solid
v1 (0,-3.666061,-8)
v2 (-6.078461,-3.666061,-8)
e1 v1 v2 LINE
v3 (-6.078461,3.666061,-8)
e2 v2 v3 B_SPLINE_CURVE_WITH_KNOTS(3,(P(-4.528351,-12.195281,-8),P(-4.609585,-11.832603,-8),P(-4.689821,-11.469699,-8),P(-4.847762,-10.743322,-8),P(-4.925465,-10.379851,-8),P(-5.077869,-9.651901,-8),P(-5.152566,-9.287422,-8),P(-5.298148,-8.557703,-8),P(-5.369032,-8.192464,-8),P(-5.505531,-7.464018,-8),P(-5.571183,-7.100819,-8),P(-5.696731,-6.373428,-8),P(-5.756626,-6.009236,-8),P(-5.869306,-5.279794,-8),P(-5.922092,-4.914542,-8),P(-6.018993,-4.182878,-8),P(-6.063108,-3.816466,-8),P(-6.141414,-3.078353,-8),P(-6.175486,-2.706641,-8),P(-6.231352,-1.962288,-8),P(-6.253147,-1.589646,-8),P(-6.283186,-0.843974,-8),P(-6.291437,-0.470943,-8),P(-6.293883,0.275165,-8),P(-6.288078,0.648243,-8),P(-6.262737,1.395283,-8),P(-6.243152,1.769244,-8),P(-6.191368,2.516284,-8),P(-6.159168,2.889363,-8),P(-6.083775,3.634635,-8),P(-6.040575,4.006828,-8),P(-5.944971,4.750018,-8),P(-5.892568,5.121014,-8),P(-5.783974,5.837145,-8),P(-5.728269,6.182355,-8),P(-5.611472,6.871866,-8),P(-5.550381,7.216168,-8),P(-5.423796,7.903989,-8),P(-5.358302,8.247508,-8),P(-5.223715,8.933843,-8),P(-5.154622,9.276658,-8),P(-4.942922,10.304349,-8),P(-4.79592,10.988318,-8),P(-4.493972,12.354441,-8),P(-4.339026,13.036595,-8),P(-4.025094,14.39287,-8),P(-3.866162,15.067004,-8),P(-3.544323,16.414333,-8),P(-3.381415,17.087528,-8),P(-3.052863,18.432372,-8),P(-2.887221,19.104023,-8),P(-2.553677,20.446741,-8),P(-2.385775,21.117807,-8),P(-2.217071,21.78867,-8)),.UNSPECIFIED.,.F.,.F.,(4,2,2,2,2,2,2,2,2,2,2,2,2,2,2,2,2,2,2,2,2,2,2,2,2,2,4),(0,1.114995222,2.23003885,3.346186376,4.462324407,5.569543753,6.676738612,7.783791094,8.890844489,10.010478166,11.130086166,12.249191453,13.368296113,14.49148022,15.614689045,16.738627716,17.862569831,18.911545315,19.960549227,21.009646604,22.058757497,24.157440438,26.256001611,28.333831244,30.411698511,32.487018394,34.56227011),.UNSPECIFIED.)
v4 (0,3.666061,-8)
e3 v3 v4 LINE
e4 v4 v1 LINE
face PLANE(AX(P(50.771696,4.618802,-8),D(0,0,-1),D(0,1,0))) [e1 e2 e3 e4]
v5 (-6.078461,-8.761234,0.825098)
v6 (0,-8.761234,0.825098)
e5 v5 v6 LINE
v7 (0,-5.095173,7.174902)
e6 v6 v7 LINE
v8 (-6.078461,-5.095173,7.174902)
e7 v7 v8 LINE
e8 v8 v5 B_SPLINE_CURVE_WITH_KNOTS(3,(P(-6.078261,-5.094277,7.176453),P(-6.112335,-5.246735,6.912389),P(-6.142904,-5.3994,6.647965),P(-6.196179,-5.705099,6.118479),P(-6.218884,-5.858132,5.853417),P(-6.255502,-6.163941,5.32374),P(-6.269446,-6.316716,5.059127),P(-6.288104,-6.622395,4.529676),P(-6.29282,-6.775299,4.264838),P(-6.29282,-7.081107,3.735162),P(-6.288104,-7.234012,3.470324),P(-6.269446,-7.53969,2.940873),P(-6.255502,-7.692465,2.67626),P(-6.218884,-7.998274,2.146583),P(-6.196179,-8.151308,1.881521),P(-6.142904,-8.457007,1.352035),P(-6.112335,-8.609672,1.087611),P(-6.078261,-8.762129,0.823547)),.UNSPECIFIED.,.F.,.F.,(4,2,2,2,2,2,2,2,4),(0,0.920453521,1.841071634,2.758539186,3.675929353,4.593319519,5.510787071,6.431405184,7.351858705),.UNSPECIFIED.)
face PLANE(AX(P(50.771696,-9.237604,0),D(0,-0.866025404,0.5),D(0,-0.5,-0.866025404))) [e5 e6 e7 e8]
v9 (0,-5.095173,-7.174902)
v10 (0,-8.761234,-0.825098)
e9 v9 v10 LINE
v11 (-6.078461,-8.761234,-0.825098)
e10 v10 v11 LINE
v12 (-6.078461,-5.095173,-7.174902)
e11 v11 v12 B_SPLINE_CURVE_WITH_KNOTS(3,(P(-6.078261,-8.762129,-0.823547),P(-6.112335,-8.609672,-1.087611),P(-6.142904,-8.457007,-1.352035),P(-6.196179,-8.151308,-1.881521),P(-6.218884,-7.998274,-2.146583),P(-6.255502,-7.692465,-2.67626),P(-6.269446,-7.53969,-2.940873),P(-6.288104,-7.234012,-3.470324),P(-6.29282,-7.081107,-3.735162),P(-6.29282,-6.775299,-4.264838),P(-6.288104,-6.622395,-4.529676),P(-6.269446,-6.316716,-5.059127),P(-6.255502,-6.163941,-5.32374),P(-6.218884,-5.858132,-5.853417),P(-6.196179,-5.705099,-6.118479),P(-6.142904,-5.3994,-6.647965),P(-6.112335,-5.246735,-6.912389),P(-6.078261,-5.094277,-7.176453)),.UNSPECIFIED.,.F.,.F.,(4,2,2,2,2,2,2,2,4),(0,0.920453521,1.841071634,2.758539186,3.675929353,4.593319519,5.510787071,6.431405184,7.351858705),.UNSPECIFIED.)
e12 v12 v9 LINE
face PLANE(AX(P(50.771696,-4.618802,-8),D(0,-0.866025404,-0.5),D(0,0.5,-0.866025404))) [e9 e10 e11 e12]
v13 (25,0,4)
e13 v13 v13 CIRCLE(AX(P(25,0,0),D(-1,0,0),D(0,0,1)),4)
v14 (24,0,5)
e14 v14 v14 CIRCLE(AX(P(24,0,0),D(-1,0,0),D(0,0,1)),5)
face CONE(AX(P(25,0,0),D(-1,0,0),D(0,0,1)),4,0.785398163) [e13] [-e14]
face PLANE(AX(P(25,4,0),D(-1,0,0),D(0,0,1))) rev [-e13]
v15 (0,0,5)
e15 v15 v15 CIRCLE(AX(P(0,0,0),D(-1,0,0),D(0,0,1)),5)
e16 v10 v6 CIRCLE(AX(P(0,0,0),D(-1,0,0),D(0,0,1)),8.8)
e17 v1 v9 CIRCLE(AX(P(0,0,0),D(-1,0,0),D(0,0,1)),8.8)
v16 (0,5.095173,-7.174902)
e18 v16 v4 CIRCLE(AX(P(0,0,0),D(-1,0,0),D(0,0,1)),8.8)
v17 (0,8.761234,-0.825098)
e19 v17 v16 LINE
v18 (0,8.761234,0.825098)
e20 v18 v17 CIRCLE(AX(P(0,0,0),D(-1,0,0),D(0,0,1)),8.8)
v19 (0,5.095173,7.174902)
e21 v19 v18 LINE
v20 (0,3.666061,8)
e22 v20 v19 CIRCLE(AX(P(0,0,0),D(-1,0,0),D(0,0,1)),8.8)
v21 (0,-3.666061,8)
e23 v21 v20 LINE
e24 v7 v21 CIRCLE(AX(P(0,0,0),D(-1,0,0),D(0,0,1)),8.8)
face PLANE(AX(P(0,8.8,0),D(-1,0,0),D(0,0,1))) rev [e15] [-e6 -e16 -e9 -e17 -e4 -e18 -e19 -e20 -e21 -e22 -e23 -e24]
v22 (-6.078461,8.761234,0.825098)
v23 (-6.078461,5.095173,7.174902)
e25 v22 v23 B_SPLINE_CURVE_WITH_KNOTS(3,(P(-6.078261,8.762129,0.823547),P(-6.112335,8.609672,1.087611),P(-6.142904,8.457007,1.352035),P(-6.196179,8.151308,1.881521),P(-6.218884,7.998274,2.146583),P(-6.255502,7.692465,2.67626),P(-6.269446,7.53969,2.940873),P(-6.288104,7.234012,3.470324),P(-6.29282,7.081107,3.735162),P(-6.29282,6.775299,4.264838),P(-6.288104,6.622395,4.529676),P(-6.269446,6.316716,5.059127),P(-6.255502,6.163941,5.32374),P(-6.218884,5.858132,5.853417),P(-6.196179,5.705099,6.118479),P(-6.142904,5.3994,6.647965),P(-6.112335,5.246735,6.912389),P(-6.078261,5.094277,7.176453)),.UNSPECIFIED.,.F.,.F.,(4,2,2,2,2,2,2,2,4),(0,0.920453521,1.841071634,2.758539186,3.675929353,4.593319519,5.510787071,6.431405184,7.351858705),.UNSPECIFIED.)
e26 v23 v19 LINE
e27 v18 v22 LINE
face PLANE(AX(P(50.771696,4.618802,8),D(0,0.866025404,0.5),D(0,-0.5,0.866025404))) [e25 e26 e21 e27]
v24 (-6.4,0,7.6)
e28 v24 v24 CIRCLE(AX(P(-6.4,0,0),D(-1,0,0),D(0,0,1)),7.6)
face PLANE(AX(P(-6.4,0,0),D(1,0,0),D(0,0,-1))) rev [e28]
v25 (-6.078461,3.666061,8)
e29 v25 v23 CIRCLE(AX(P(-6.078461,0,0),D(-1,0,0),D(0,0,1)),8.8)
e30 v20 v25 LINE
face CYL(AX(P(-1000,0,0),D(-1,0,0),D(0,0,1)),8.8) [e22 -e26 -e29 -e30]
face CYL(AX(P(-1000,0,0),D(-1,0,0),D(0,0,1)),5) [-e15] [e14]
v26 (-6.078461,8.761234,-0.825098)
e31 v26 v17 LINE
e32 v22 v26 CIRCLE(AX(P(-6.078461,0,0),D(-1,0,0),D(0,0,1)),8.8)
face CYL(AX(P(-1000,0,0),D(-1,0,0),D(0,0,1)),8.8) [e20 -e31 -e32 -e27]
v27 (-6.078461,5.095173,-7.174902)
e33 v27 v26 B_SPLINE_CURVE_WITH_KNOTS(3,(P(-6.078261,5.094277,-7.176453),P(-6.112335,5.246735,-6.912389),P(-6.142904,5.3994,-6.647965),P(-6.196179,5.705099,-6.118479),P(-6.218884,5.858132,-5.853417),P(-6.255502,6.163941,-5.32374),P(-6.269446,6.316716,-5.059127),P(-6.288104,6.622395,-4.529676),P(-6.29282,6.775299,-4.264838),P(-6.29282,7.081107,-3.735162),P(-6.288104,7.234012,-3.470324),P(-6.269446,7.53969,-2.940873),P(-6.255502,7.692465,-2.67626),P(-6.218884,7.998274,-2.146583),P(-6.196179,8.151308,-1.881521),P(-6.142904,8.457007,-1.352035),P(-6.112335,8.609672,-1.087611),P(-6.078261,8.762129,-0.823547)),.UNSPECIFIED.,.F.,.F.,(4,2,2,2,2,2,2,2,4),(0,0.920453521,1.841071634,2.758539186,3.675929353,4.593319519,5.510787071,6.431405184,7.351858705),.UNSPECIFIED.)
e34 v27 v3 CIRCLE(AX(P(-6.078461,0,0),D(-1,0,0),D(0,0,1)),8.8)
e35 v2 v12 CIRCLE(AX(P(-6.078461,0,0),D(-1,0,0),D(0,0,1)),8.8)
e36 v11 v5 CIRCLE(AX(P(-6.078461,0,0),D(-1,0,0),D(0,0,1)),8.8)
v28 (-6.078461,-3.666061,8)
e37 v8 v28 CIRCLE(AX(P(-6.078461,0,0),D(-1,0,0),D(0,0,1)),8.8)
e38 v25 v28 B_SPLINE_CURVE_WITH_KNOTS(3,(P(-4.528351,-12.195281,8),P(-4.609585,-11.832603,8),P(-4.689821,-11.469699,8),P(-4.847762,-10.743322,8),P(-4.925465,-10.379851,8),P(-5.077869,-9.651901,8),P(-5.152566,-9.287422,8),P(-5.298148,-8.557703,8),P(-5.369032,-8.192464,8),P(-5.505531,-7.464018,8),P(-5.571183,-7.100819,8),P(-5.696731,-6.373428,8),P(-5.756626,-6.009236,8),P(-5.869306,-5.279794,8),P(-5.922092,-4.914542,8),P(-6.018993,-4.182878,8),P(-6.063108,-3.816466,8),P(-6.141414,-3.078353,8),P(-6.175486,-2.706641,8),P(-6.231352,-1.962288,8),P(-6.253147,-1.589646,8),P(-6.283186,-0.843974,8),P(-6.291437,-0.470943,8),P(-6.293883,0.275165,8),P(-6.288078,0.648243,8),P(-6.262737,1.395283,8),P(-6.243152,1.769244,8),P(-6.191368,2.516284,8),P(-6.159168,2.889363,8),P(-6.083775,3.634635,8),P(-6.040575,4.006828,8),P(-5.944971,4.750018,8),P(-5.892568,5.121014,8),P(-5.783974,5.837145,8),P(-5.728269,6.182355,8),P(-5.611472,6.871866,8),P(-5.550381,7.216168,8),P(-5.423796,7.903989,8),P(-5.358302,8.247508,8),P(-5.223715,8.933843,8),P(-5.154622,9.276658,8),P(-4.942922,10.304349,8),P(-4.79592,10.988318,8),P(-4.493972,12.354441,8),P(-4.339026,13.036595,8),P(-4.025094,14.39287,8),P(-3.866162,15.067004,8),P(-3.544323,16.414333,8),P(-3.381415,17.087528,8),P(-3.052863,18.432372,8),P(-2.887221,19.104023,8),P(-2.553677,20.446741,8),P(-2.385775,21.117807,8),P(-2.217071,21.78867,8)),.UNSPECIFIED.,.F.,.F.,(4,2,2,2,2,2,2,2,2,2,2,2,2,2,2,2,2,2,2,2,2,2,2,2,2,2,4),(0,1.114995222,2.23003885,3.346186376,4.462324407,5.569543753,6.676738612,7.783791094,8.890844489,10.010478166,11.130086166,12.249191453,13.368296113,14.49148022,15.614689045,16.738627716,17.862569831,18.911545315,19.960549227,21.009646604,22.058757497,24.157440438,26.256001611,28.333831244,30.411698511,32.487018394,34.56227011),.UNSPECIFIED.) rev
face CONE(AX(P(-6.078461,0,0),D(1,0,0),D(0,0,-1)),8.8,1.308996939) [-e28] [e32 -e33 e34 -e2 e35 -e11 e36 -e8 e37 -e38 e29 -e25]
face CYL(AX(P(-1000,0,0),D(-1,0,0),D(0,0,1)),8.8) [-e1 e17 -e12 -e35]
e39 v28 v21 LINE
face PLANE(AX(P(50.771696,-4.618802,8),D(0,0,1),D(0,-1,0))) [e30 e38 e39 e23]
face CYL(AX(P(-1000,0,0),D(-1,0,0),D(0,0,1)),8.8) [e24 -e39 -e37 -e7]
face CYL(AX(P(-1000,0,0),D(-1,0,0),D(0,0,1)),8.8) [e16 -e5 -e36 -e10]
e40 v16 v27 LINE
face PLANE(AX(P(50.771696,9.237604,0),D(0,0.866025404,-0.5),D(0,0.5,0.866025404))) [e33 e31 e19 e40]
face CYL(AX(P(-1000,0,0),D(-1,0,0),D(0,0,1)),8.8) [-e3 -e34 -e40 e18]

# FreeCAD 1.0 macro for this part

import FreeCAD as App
import Part
import Sketcher
Q = App.Units.Quantity


def add_polygon(sketch, points):
    """Adds a closed chain of lines whose ends are joined by coincident constraints."""
    first, n = sketch.GeometryCount, len(points)
    for a, b in zip(points, points[1:] + points[:1]):
        sketch.addGeometry(Part.LineSegment(App.Vector(*a, 0), App.Vector(*b, 0)), False)
    for i in range(n):
        sketch.addConstraint(Sketcher.Constraint("Coincident", first + i, 2, first + (i + 1) % n, 1))

doc = App.newDocument("Part")
body = doc.addObject("PartDesign::Body", "Body")

# Sketch on XY plane
sketch1 = doc.addObject("Sketcher::SketchObject", "Sketch")
body.addObject(sketch1)
sketch1.AttachmentSupport = (doc.XY_Plane, [""])
sketch1.MapMode = "FlatFace"
add_polygon(sketch1, [(-6.4, 7.6), (-6.4, 0), (25, 0), (25, 4), (24, 5), (0, 5), (0, 8.8), (-6.1, 8.8)])  # lines 0-7
sketch1.addConstraint([
    Sketcher.Constraint("Vertical", 0),
    Sketcher.Constraint("Horizontal", 1),
    Sketcher.Constraint("Vertical", 2),
    Sketcher.Constraint("Horizontal", 4),
    Sketcher.Constraint("Vertical", 5),
    Sketcher.Constraint("Horizontal", 6),
    Sketcher.Constraint("PointOnObject", 0, 2, -1),
    Sketcher.Constraint("PointOnObject", 4, 2, -2),
    Sketcher.Constraint("DistanceX", 4, 2, 4, 1, Q("24 mm")),
    Sketcher.Constraint("DistanceY", 2, 1, 2, 2, Q("4 mm")),
    Sketcher.Constraint("Angle", 3, Q("135 deg")),
    Sketcher.Constraint("Angle", 7, Q("-105 deg")),
    Sketcher.Constraint("DistanceX", 1, 1, 1, 2, Q("31.4 mm")),
    Sketcher.Constraint("DistanceY", 0, 2, 0, 1, Q("7.6 mm")),
    Sketcher.Constraint("DistanceY", 5, 1, 5, 2, Q("3.8 mm")),
    Sketcher.Constraint("DistanceX", -1, 1, 1, 2, Q("25 mm")),
])
revolution = doc.addObject("PartDesign::Revolution", "Revolution")
body.addObject(revolution)
revolution.Profile = sketch1
revolution.ReferenceAxis = (sketch1, ["H_Axis"])
revolution.Angle = 360

# Sketch on YZ plane
sketch2 = doc.addObject("Sketcher::SketchObject", "Sketch001")
body.addObject(sketch2)
sketch2.AttachmentSupport = (doc.YZ_Plane, [""])
sketch2.MapMode = "FlatFace"
sketch2.AttachmentOffset = App.Placement(App.Vector(0, 0, -6.4), App.Rotation())
add_polygon(sketch2, [(14, -14), (-14, -14), (-14, 14), (14, 14)])  # lines 0-3
add_polygon(sketch2, [(5, -8), (9, 0), (5, 8), (-5, 8), (-9, 0), (-5, -8)])  # lines 4-9
sketch2.addConstraint([
    Sketcher.Constraint("Horizontal", 0),
    Sketcher.Constraint("Vertical", 1),
    Sketcher.Constraint("Horizontal", 2),
    Sketcher.Constraint("Vertical", 3),
    Sketcher.Constraint("Horizontal", 6),
    Sketcher.Constraint("Horizontal", 9),
    Sketcher.Constraint("Symmetric", 0, 2, 2, 2, -1, 1),
    Sketcher.Constraint("Symmetric", 4, 2, 7, 2, -1, 1),
    Sketcher.Constraint("Symmetric", 5, 2, 8, 2, -1, 1),
    Sketcher.Constraint("PointOnObject", 4, 2, -1),
    Sketcher.Constraint("Parallel", 4, 7),
    Sketcher.Constraint("Vertical", 6, 2, 8, 2),
    Sketcher.Constraint("Equal", 2, 1),
    Sketcher.Constraint("Angle", 4, Q("60 deg")),
    Sketcher.Constraint("DistanceY", -1, 1, 5, 2, Q("8 mm")),
    Sketcher.Constraint("DistanceX", 0, 2, 0, 1, Q("27.614 mm")),
    Sketcher.Constraint("DistanceX", 6, 2, 6, 1, Q("9.237604 mm")),
])
pocket1 = doc.addObject("PartDesign::Pocket", "Pocket")
body.addObject(pocket1)
pocket1.Profile = sketch2
pocket1.Length = 31.4
pocket1.Reversed = True

doc.recompute()
